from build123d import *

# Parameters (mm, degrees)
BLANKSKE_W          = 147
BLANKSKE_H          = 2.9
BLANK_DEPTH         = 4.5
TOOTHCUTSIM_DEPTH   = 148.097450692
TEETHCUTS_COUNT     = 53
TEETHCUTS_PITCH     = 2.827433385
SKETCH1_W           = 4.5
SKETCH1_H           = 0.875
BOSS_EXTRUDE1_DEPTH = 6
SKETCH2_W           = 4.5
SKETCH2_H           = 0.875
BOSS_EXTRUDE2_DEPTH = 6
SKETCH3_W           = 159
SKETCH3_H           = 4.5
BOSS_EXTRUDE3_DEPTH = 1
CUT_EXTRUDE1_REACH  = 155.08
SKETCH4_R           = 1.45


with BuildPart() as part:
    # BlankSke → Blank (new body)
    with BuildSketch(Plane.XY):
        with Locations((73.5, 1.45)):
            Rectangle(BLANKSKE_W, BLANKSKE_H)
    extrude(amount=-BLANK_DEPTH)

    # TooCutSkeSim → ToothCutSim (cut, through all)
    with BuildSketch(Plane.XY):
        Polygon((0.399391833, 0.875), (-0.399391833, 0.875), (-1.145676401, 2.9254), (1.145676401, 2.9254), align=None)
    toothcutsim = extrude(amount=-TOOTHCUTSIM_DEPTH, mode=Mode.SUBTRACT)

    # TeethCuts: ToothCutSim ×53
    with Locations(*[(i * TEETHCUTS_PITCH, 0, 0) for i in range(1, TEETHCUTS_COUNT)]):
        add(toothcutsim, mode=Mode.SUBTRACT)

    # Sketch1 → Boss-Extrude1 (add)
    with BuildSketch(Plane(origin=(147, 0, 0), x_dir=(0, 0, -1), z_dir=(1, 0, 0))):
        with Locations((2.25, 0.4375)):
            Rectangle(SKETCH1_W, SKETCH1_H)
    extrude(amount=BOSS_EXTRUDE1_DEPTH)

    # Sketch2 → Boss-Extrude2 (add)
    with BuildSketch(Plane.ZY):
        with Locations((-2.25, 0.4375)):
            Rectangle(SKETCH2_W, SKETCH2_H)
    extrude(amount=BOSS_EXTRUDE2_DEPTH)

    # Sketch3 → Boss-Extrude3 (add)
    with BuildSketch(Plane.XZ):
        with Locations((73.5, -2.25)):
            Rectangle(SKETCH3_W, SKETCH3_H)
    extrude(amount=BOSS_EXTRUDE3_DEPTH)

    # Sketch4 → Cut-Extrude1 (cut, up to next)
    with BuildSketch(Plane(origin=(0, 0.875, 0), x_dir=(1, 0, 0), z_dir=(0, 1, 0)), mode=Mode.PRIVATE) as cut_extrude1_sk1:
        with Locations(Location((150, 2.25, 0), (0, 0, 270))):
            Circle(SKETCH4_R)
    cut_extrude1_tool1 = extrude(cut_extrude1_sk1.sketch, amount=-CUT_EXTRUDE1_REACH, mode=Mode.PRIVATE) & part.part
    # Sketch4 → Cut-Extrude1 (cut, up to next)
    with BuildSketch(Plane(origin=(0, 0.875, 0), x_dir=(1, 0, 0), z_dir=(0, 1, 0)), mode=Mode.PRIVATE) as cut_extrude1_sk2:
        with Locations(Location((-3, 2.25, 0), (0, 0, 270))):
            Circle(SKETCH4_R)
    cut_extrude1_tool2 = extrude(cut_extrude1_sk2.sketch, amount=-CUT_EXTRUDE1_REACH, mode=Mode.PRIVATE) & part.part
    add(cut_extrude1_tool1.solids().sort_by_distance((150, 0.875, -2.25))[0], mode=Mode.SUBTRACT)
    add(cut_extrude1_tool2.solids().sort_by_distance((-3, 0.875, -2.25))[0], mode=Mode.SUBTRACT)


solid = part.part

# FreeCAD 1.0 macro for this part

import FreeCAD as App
import Part
import Sketcher
Q = App.Units.Quantity


def add_polygon(sketch, points):
    """Adds a closed chain of lines whose ends are joined by coincident constraints."""
    first, n = sketch.GeometryCount, len(points)
    for a, b in zip(points, points[1:] + points[:1]):
        sketch.addGeometry(Part.LineSegment(App.Vector(*a, 0), App.Vector(*b, 0)), False)
    for i in range(n):
        sketch.addConstraint(Sketcher.Constraint("Coincident", first + i, 2, first + (i + 1) % n, 1))

doc = App.newDocument("Part")
body = doc.addObject("PartDesign::Body", "Body")

# Sketch on XY plane
sketch1 = body.newObject("Sketcher::SketchObject", "Sketch")
sketch1.AttachmentSupport = (doc.getObject("XY_Plane"), [""])
sketch1.MapMode = "FlatFace"
add_polygon(sketch1, [(0, 2.9), (0, 0), (147, 0), (147, 2.9)])  # lines 0-3
sketch1.addConstraint(Sketcher.Constraint("Vertical", 0))
sketch1.addConstraint(Sketcher.Constraint("Horizontal", 1))
sketch1.addConstraint(Sketcher.Constraint("Vertical", 2))
sketch1.addConstraint(Sketcher.Constraint("Horizontal", 3))
sketch1.addConstraint(Sketcher.Constraint("Coincident", 0, 2, -1, 1))
sketch1.addConstraint(Sketcher.Constraint("DistanceX", 1, 1, 1, 2, 147.0))
sketch1.addConstraint(Sketcher.Constraint("DistanceY", 0, 2, 0, 1, 2.9))
pad1 = body.newObject("PartDesign::Pad", "Pad")
pad1.Profile = sketch1
pad1.Length = 4.5
pad1.Reversed = True

# Sketch on XY plane
sketch2 = body.newObject("Sketcher::SketchObject", "Sketch001")
sketch2.AttachmentSupport = (doc.getObject("XY_Plane"), [""])
sketch2.MapMode = "FlatFace"
add_polygon(sketch2, [(-0.4, 0.9), (0.4, 0.9), (1.1, 2.9), (-1.1, 2.9)])  # lines 0-3
sketch2.addConstraint(Sketcher.Constraint("Horizontal", 0))
sketch2.addConstraint(Sketcher.Constraint("Horizontal", 2))
sketch2.addConstraint(Sketcher.Constraint("Equal", 1, 3))
sketch2.addConstraint(Sketcher.Constraint("Angle", 1, Q("70 deg")))
sketch2.addConstraint(Sketcher.Constraint("DistanceY", -1, 1, 0, 2, 0.875))
sketch2.addConstraint(Sketcher.Constraint("DistanceY", -1, 1, 1, 2, 2.9254))
sketch2.addConstraint(Sketcher.Constraint("DistanceX", 0, 1, 0, 2, 0.798784))
sketch2.addConstraint(Sketcher.Constraint("DistanceX", -1, 1, 0, 2, 0.399392))
pocket1 = body.newObject("PartDesign::Pocket", "Pocket")
pocket1.Profile = sketch2
pocket1.Type = "ThroughAll"
doc.recompute()

linearpattern = body.newObject("PartDesign::LinearPattern", "LinearPattern")
linearpattern.Originals = [pocket1]
linearpattern.Direction = (doc.getObject("X_Axis"), [""])
linearpattern.Mode = "offset"
linearpattern.Offset = 2.827433
linearpattern.Occurrences = 53
body.Tip = linearpattern

# Sketch on YZ plane
sketch3 = body.newObject("Sketcher::SketchObject", "Sketch002")
sketch3.AttachmentSupport = (doc.getObject("YZ_Plane"), [""])
sketch3.MapMode = "FlatFace"
sketch3.AttachmentOffset = App.Placement(App.Vector(0, 0, 147), App.Rotation())
add_polygon(sketch3, [(0.9, 0), (0, 0), (0, -4.5), (0.9, -4.5)])  # lines 0-3
sketch3.addConstraint(Sketcher.Constraint("Horizontal", 0))
sketch3.addConstraint(Sketcher.Constraint("Vertical", 1))
sketch3.addConstraint(Sketcher.Constraint("Horizontal", 2))
sketch3.addConstraint(Sketcher.Constraint("Vertical", 3))
sketch3.addConstraint(Sketcher.Constraint("Coincident", 0, 2, -1, 1))
sketch3.addConstraint(Sketcher.Constraint("DistanceY", 1, 2, 1, 1, 4.5))
sketch3.addConstraint(Sketcher.Constraint("DistanceX", 0, 2, 0, 1, 0.875))
pad2 = body.newObject("PartDesign::Pad", "Pad001")
pad2.Profile = sketch3
pad2.Length = 6

# Sketch on YZ plane
sketch4 = body.newObject("Sketcher::SketchObject", "Sketch003")
sketch4.AttachmentSupport = (doc.getObject("YZ_Plane"), [""])
sketch4.MapMode = "FlatFace"
add_polygon(sketch4, [(0.9, -4.5), (0, -4.5), (0, 0), (0.9, 0)])  # lines 0-3
sketch4.addConstraint(Sketcher.Constraint("Horizontal", 0))
sketch4.addConstraint(Sketcher.Constraint("Vertical", 1))
sketch4.addConstraint(Sketcher.Constraint("Horizontal", 2))
sketch4.addConstraint(Sketcher.Constraint("Vertical", 3))
sketch4.addConstraint(Sketcher.Constraint("Coincident", 1, 2, -1, 1))
sketch4.addConstraint(Sketcher.Constraint("DistanceY", 1, 1, 1, 2, 4.5))
sketch4.addConstraint(Sketcher.Constraint("DistanceX", 0, 2, 0, 1, 0.875))
pad3 = body.newObject("PartDesign::Pad", "Pad002")
pad3.Profile = sketch4
pad3.Length = 6
pad3.Reversed = True

# Sketch on XZ plane
sketch5 = body.newObject("Sketcher::SketchObject", "Sketch004")
sketch5.AttachmentSupport = (doc.getObject("XZ_Plane"), [""])
sketch5.MapMode = "FlatFace"
add_polygon(sketch5, [(-6, 0), (-6, -4.5), (153, -4.5), (153, 0)])  # lines 0-3
sketch5.addConstraint(Sketcher.Constraint("Vertical", 0))
sketch5.addConstraint(Sketcher.Constraint("Horizontal", 1))
sketch5.addConstraint(Sketcher.Constraint("Vertical", 2))
sketch5.addConstraint(Sketcher.Constraint("Horizontal", 3))
sketch5.addConstraint(Sketcher.Constraint("PointOnObject", 2, 2, -1))
sketch5.addConstraint(Sketcher.Constraint("DistanceX", 1, 1, 1, 2, 159.0))
sketch5.addConstraint(Sketcher.Constraint("DistanceY", 0, 2, 0, 1, 4.5))
sketch5.addConstraint(Sketcher.Constraint("DistanceX", 0, 2, -1, 1, 6.0))
pad4 = body.newObject("PartDesign::Pad", "Pad003")
pad4.Profile = sketch5
pad4.Length = 1

# Sketch on XZ plane
sketch6 = body.newObject("Sketcher::SketchObject", "Sketch005")
sketch6.AttachmentSupport = (doc.getObject("XZ_Plane"), [""])
sketch6.MapMode = "FlatFace"
sketch6.AttachmentOffset = App.Placement(App.Vector(0, 0, -0.875), App.Rotation())
sketch6.addGeometry(Part.Circle(App.Vector(150, -2.2, 0), App.Vector(0, 0, 1), 1.4), False)
sketch6.addConstraint(Sketcher.Constraint("Diameter", 0, 2.9))
sketch6.addConstraint(Sketcher.Constraint("DistanceX", -1, 1, 0, 3, 150.0))
sketch6.addConstraint(Sketcher.Constraint("DistanceY", 0, 3, -1, 1, 2.25))
pocket2 = body.newObject("PartDesign::Pocket", "Pocket001")
pocket2.Profile = sketch6
pocket2.Type = "UpToFirst"
pocket2.Reversed = True

# Sketch on XZ plane
sketch7 = body.newObject("Sketcher::SketchObject", "Sketch006")
sketch7.AttachmentSupport = (doc.getObject("XZ_Plane"), [""])
sketch7.MapMode = "FlatFace"
sketch7.AttachmentOffset = App.Placement(App.Vector(0, 0, -0.875), App.Rotation())
sketch7.addGeometry(Part.Circle(App.Vector(-3, -2.2, 0), App.Vector(0, 0, 1), 1.4), False)
sketch7.addConstraint(Sketcher.Constraint("Diameter", 0, 2.9))
sketch7.addConstraint(Sketcher.Constraint("DistanceX", 0, 3, -1, 1, 3.0))
sketch7.addConstraint(Sketcher.Constraint("DistanceY", 0, 3, -1, 1, 2.25))
pocket3 = body.newObject("PartDesign::Pocket", "Pocket002")
pocket3.Profile = sketch7
pocket3.Type = "UpToFirst"
pocket3.Reversed = True

doc.recompute()
